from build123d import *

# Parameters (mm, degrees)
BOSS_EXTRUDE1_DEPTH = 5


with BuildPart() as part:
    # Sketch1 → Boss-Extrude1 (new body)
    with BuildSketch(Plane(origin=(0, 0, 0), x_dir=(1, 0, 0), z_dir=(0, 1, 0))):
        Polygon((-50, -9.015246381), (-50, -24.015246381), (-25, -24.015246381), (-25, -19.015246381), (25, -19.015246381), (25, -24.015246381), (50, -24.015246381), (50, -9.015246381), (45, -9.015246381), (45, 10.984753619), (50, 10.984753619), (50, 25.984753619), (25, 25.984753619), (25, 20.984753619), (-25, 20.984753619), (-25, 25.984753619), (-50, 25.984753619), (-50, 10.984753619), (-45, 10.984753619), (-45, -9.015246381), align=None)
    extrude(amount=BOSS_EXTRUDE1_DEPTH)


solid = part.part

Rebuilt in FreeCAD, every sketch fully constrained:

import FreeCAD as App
import Part
import Sketcher

V = App.Vector


def add_polygon(sketch, points):
    """Adds a closed chain of lines whose ends are joined by coincident constraints."""
    first, n = sketch.GeometryCount, len(points)
    for a, b in zip(points, points[1:] + points[:1]):
        sketch.addGeometry(Part.LineSegment(App.Vector(*a, 0), App.Vector(*b, 0)), False)
    for i in range(n):
        sketch.addConstraint(Sketcher.Constraint("Coincident", first + i, 2, first + (i + 1) % n, 1))

doc = App.newDocument("Part")
body = doc.addObject("PartDesign::Body", "Body")

# Sketch on XZ plane
sketch1 = body.newObject("Sketcher::SketchObject", "Sketch")
sketch1.AttachmentSupport = (doc.getObject("XZ_Plane"), [""])
sketch1.MapMode = "FlatFace"
add_polygon(sketch1, [(-50, 9), (-50, 24), (-25, 24), (-25, 19), (25, 19), (25, 24), (50, 24), (50, 9), (45, 9), (45, -11), (50, -11), (50, -26), (25, -26), (25, -21), (-25, -21), (-25, -26), (-50, -26), (-50, -11), (-45, -11), (-45, 9)])  # lines 0-19
sketch1.addConstraint([
    Sketcher.Constraint("Vertical", 0),
    Sketcher.Constraint("Horizontal", 1),
    Sketcher.Constraint("Vertical", 2),
    Sketcher.Constraint("Horizontal", 3),
    Sketcher.Constraint("Vertical", 4),
    Sketcher.Constraint("Horizontal", 5),
    Sketcher.Constraint("Vertical", 6),
    Sketcher.Constraint("Horizontal", 7),
    Sketcher.Constraint("Vertical", 8),
    Sketcher.Constraint("Horizontal", 9),
    Sketcher.Constraint("Vertical", 10),
    Sketcher.Constraint("Horizontal", 11),
    Sketcher.Constraint("Vertical", 12),
    Sketcher.Constraint("Horizontal", 13),
    Sketcher.Constraint("Vertical", 14),
    Sketcher.Constraint("Horizontal", 15),
    Sketcher.Constraint("Vertical", 16),
    Sketcher.Constraint("Horizontal", 17),
    Sketcher.Constraint("Vertical", 18),
    Sketcher.Constraint("Horizontal", 19),
    Sketcher.Constraint("Symmetric", 1, 2, 4, 2, -2),
    Sketcher.Constraint("Symmetric", 11, 2, 14, 2, -2),
    Sketcher.Constraint("Symmetric", 9, 2, 16, 2, -2),
    Sketcher.Constraint("Symmetric", 7, 2, 18, 2, -2),
    Sketcher.Constraint("Vertical", 6, 2, 9, 2),
    Sketcher.Constraint("Vertical", 4, 2, 11, 2),
    Sketcher.Constraint("Vertical", 0, 2, 15, 2),
    Sketcher.Constraint("Equal", 19, 2),
    Sketcher.Constraint("Equal", 6, 10),
    Sketcher.Constraint("Equal", 4, 12),
    Sketcher.Constraint("DistanceX", 1, 1, 1, 2, 25.0),
    Sketcher.Constraint("DistanceX", 3, 1, 3, 2, 50.0),
    Sketcher.Constraint("DistanceX", 7, 2, 7, 1, 5.0),
    Sketcher.Constraint("DistanceY", 0, 1, 0, 2, 15.0),
    Sketcher.Constraint("DistanceY", 8, 2, 8, 1, 20.0),
    Sketcher.Constraint("DistanceY", -1, 1, 0, 2, 24.015246),
])
pad1 = body.newObject("PartDesign::Pad", "Pad")
pad1.Profile = sketch1
pad1.Length = 5
pad1.Reversed = True

doc.recompute()
